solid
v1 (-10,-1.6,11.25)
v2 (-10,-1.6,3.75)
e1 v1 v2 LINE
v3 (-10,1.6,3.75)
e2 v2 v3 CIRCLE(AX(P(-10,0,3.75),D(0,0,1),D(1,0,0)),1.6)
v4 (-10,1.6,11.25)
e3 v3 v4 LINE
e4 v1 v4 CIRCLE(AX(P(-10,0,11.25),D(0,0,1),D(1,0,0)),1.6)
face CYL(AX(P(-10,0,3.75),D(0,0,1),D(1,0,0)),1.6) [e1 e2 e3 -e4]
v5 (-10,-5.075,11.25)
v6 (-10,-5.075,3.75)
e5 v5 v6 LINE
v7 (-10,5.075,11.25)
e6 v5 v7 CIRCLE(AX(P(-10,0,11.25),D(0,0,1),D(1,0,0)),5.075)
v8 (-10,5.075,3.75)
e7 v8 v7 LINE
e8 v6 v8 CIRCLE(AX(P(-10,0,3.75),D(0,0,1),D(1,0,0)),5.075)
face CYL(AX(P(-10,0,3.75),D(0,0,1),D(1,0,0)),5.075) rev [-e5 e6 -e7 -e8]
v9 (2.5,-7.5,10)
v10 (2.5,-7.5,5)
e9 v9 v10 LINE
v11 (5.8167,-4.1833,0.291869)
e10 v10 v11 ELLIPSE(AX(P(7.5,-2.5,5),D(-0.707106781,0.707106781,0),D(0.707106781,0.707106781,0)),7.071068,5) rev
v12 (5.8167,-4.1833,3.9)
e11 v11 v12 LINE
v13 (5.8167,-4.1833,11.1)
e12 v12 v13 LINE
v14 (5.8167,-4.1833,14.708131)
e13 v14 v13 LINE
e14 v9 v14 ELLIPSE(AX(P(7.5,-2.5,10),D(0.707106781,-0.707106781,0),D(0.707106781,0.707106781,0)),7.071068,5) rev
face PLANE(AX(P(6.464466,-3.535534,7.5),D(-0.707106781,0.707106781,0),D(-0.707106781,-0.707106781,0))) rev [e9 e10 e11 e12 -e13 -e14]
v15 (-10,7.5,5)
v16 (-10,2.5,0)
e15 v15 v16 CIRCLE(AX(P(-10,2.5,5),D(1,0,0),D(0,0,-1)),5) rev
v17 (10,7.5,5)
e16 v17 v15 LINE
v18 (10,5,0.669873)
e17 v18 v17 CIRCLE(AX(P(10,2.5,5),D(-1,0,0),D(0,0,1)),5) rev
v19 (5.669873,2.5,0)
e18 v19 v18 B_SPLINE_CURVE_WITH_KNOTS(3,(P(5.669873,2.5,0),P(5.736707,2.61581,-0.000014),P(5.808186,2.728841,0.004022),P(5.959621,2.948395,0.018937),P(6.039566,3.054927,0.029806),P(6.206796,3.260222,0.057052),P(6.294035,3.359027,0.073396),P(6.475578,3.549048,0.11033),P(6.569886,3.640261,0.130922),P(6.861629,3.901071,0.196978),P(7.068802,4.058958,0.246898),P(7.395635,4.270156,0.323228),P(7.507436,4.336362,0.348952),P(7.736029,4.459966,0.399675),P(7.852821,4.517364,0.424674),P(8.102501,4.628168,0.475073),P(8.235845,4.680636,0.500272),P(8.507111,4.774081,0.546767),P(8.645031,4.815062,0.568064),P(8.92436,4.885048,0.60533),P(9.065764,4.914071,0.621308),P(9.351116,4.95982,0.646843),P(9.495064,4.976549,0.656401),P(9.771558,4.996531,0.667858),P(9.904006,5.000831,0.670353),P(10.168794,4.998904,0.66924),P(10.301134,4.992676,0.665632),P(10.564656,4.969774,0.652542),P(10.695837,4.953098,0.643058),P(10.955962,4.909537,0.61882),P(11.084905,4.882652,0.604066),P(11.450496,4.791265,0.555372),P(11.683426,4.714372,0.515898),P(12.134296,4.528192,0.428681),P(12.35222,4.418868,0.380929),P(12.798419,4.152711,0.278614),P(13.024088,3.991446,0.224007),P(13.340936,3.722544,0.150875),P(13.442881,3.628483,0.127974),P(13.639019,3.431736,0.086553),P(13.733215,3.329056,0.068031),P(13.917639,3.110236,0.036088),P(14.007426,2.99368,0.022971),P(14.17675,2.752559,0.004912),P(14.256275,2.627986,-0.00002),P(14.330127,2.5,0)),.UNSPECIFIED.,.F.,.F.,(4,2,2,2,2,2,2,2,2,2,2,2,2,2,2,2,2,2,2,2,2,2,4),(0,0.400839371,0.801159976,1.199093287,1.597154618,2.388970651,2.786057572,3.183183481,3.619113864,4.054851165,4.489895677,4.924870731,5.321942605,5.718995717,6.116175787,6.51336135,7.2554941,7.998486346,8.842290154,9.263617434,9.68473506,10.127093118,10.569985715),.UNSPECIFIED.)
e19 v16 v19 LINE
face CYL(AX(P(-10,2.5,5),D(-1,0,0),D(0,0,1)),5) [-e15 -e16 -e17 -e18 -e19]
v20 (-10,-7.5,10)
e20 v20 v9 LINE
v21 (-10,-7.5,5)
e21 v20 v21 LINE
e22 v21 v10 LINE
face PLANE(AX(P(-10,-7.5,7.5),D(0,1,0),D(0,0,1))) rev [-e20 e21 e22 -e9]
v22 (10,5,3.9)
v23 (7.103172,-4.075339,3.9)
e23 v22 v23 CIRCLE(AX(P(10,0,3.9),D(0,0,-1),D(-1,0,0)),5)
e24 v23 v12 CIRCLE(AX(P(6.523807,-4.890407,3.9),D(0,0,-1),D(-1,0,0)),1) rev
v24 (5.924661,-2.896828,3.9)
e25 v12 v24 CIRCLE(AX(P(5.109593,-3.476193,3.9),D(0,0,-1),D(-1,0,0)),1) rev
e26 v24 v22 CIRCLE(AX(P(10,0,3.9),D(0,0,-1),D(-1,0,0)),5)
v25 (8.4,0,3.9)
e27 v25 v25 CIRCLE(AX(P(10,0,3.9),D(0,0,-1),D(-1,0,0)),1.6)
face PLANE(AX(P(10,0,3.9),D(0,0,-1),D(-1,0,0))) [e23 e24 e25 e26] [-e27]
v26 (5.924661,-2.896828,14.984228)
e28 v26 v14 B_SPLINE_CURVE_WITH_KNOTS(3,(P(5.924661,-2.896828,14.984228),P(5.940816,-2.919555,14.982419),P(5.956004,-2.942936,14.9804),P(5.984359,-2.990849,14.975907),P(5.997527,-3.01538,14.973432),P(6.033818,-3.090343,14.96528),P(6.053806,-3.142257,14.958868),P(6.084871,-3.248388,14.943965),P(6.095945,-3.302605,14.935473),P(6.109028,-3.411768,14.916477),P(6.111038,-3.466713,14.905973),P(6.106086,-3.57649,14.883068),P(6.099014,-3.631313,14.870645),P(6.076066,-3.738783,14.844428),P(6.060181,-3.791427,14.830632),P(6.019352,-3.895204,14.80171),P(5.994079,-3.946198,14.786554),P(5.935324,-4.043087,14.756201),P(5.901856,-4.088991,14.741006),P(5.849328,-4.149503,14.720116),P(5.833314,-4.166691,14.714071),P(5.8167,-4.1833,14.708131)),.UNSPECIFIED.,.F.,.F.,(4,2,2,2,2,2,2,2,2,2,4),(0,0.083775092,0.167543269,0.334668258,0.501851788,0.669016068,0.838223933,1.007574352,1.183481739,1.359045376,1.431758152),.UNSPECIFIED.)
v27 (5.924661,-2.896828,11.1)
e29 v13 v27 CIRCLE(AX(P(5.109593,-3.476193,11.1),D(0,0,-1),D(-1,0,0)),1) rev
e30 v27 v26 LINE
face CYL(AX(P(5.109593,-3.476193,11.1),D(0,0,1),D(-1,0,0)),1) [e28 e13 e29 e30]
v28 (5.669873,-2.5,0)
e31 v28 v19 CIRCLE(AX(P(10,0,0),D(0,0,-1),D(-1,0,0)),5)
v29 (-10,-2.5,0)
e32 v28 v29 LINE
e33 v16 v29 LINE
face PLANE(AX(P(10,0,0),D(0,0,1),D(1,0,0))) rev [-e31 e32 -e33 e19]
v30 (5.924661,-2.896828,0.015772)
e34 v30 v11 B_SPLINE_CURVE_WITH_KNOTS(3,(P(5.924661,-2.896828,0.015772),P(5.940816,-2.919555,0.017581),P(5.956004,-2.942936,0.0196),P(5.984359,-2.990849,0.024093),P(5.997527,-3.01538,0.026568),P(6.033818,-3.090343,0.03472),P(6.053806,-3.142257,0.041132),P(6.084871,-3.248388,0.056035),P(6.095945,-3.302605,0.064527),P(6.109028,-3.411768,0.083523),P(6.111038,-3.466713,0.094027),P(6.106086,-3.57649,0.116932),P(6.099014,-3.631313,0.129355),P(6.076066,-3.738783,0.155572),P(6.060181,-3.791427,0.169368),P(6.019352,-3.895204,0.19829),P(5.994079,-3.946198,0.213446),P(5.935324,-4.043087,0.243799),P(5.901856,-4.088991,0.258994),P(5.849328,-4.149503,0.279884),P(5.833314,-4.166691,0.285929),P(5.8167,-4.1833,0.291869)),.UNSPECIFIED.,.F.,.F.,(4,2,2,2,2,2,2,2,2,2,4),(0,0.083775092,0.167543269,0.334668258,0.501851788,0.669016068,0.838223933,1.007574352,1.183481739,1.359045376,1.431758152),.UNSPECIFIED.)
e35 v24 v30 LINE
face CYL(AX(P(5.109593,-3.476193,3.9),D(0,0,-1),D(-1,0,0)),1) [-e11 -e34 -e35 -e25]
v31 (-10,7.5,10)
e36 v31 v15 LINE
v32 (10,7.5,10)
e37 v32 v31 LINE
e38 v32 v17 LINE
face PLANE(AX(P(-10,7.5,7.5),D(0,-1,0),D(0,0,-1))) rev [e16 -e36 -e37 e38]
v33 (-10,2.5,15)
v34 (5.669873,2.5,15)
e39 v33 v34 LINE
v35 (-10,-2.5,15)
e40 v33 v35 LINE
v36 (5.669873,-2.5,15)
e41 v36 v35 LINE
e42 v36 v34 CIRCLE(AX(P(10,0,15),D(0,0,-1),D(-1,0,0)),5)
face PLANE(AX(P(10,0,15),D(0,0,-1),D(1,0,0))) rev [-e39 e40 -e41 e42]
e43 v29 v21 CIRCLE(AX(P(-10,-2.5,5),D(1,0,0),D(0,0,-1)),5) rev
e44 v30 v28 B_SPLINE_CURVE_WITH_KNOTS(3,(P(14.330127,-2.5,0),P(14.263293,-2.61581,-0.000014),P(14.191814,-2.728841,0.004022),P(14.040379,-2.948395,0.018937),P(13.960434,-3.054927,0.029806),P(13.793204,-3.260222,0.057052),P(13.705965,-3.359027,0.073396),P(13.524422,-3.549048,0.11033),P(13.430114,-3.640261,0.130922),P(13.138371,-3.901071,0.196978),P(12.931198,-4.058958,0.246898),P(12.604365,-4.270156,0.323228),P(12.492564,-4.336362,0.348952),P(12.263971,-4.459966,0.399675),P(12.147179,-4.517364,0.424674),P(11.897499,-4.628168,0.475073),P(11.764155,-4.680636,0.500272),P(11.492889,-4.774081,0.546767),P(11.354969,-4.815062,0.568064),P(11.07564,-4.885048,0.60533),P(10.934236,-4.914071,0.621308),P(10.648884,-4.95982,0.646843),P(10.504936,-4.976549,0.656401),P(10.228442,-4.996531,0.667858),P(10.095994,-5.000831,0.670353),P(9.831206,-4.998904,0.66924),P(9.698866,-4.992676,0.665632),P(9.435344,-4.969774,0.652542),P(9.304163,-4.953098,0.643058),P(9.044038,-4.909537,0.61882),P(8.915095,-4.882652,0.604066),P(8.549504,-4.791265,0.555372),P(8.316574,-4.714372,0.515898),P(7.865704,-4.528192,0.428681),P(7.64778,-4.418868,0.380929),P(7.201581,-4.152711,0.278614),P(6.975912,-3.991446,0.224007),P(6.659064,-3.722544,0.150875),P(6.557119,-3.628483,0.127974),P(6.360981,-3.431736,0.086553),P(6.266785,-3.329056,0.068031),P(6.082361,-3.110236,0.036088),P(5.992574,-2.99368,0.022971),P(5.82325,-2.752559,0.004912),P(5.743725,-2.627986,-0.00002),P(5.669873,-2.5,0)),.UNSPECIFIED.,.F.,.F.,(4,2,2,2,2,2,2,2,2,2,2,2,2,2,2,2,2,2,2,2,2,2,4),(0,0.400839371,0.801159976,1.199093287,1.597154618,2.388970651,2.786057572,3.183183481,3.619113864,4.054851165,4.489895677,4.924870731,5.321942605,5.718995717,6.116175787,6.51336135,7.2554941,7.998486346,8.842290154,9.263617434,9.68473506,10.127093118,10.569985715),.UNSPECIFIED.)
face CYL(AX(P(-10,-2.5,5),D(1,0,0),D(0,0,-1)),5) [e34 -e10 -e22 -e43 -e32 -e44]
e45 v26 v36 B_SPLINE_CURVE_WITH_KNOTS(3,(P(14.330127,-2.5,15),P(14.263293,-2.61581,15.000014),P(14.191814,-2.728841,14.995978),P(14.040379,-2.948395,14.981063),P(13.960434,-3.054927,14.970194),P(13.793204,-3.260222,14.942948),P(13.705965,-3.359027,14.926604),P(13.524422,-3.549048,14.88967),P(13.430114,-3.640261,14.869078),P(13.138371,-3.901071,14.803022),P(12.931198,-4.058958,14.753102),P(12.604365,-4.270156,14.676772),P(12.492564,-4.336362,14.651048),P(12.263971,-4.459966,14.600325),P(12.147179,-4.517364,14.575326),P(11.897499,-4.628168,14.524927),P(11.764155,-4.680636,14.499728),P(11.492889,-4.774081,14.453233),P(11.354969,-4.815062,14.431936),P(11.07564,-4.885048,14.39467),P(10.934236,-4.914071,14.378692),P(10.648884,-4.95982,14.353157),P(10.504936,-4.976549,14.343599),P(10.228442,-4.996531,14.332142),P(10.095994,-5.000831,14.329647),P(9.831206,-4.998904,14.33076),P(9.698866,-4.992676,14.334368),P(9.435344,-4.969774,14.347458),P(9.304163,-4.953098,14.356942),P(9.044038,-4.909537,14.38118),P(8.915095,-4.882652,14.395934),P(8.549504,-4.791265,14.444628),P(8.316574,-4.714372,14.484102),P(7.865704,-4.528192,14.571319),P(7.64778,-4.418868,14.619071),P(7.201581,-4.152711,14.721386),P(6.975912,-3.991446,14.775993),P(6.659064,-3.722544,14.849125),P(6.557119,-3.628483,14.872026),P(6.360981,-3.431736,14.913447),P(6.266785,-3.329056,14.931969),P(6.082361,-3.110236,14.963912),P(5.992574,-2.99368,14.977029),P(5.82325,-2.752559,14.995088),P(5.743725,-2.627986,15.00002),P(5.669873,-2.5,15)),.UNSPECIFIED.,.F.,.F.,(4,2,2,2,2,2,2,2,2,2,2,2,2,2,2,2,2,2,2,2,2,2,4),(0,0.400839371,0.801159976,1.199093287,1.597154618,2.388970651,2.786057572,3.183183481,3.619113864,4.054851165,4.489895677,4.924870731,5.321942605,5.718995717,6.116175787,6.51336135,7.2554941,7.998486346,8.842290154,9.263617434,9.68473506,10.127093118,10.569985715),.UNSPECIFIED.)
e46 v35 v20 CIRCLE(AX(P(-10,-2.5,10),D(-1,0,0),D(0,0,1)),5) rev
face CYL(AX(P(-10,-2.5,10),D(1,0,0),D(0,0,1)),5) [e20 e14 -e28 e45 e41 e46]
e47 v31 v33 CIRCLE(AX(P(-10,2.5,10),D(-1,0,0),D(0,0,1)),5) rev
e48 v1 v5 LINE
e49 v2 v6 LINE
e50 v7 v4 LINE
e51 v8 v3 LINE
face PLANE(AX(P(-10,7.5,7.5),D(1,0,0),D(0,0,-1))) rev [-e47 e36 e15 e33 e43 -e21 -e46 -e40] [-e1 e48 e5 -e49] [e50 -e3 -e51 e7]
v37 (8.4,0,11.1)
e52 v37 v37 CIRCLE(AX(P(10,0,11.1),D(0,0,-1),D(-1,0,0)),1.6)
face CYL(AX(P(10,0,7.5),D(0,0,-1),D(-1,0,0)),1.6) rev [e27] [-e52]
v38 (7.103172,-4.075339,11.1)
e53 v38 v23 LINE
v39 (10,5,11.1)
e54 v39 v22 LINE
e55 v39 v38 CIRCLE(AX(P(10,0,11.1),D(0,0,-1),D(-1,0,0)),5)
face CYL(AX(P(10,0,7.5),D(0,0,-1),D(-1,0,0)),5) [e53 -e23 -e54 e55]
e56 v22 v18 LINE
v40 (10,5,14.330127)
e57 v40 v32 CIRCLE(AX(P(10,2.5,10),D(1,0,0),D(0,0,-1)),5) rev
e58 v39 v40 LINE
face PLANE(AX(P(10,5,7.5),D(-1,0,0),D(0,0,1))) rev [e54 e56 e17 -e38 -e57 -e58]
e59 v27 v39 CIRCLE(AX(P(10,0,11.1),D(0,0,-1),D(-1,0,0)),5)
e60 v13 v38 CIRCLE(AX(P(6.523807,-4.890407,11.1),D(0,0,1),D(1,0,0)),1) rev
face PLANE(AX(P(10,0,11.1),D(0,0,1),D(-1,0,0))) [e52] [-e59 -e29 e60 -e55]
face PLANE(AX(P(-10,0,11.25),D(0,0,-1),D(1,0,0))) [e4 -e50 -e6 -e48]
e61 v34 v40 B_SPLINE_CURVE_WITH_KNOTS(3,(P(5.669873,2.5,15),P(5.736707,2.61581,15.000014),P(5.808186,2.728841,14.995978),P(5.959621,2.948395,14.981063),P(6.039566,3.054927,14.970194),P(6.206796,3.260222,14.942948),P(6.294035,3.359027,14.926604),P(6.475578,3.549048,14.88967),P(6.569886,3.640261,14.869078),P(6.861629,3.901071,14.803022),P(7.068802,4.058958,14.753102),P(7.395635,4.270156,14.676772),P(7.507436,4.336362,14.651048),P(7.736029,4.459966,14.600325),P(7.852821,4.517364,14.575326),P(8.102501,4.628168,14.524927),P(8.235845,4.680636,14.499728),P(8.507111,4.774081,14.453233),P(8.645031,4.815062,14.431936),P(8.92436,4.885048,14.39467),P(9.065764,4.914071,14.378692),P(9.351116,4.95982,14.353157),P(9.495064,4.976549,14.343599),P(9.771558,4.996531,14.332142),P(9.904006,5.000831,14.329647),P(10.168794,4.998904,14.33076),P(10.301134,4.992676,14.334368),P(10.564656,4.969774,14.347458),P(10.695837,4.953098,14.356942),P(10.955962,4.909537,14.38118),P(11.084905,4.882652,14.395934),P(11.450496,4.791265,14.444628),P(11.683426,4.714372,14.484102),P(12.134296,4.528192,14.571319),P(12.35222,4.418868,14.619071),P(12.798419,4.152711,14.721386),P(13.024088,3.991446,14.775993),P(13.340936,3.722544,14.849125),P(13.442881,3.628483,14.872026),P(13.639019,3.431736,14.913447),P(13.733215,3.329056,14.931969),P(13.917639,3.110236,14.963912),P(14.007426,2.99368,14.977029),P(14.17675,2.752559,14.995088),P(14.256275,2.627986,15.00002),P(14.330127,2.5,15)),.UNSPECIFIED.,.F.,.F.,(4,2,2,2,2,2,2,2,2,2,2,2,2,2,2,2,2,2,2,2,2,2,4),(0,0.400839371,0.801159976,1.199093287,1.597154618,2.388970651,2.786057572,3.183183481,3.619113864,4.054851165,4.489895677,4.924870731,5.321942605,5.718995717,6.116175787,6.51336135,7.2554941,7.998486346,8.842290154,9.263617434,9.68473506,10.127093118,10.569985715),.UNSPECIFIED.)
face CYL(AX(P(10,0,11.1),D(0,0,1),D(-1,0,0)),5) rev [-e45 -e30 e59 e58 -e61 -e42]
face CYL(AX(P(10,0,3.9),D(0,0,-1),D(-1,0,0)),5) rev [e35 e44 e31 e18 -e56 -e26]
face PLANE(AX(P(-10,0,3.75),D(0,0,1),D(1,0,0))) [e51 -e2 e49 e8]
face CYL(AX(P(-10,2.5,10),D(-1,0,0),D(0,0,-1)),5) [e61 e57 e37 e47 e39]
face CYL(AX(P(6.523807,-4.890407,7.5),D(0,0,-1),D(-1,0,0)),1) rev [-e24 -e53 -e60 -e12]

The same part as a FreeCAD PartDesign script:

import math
import FreeCAD as App
import Part
import Sketcher
from FreeCAD import Vector
Q = App.Units.Quantity


def edges_at(feature, points):
    """Names of the edges that pass closest to the given points."""
    edges = feature.Shape.Edges
    near = lambda p: min(range(len(edges)), key=lambda i: edges[i].distToShape(Part.Vertex(*p))[0])
    return sorted({f"Edge{near(p) + 1}" for p in points})

doc = App.newDocument("Part")
params = doc.addObject("Spreadsheet::Sheet", "Params")
for row, (alias, value) in enumerate([
    ("sketch1_radius", "5 mm"),
    ("sketch1_diameter", "3.2 mm"),
    ("sketch1_width", "20 mm"),
    ("sketch1_height", "15 mm"),
    ("pad1_length", "7.5 mm"),
    ("sketch2_diameter", "3.2 mm"),
    ("sketch2_diameter2", "10.15 mm"),
    ("pocket1_length", "3.75 mm"),
    ("fillet_radius", "5 mm"),
    ("sketch3_diameter", "10 mm"),
    ("pocket2_length", "3.9 mm"),
    ("sketch4_radius", "5 mm"),
    ("sketch4_width", "7.5 mm"),
    ("sketch4_height", "2.5 mm"),
    ("fillet2_radius", "1 mm"),
    ("fillet3_radius", "1 mm"),
], start=1):
    params.set(f"A{row}", alias)
    params.set(f"B{row}", "=" + value)
    params.setAlias(f"B{row}", alias)

body = doc.addObject("PartDesign::Body", "Body")

# Sketch on XY plane
sketch1 = doc.addObject("Sketcher::SketchObject", "Sketch")
body.addObject(sketch1)
sketch1.AttachmentSupport = (doc.XY_Plane, [""])
sketch1.MapMode = "FlatFace"
sketch1.addGeometry([
    Part.LineSegment(Vector(10, 5, 0), Vector(10, 7.5, 0)),  # 0
    Part.LineSegment(Vector(10, 7.5, 0), Vector(-10, 7.5, 0)),  # 1
    Part.LineSegment(Vector(-10, 7.5, 0), Vector(-10, -7.5, 0)),  # 2
    Part.LineSegment(Vector(-10, -7.5, 0), Vector(10, -7.5, 0)),  # 3
    Part.LineSegment(Vector(10, -7.5, 0), Vector(10, -5, 0)),  # 4
    Part.ArcOfCircle(Part.Circle(Vector(10, 0, 0), Vector(0, 0, 1), 5), math.radians(-90), math.radians(90)),  # 5
    Part.Circle(Vector(10, 0, 0), Vector(0, 0, 1), 1.6),  # 6
], False)
sketch1.addConstraint([
    Sketcher.Constraint("Coincident", 0, 2, 1, 1),
    Sketcher.Constraint("Coincident", 1, 2, 2, 1),
    Sketcher.Constraint("Coincident", 2, 2, 3, 1),
    Sketcher.Constraint("Coincident", 3, 2, 4, 1),
    Sketcher.Constraint("Coincident", 4, 2, 5, 1),
    Sketcher.Constraint("Coincident", 5, 2, 0, 1),
    Sketcher.Constraint("Vertical", 0),
    Sketcher.Constraint("Horizontal", 1),
    Sketcher.Constraint("Vertical", 2),
    Sketcher.Constraint("Horizontal", 3),
    Sketcher.Constraint("Vertical", 4),
    Sketcher.Constraint("Coincident", 6, 3, 5, 3),
    Sketcher.Constraint("Symmetric", 0, 2, 2, 2, -1, 1),
    Sketcher.Constraint("Symmetric", 4, 2, 5, 2, -1),
    Sketcher.Constraint("Vertical", 6, 3, 0, 2),
    Sketcher.Constraint("Radius", 5, Q("5 mm")),
    Sketcher.Constraint("Diameter", 6, Q("3.2 mm")),
    Sketcher.Constraint("DistanceX", 1, 2, 1, 1, Q("20 mm")),
    Sketcher.Constraint("DistanceY", 2, 2, 2, 1, Q("15 mm")),
])
sketch1.setExpression("Constraints[15]", "Params.sketch1_radius")
sketch1.setExpression("Constraints[16]", "Params.sketch1_diameter")
sketch1.setExpression("Constraints[17]", "Params.sketch1_width")
sketch1.setExpression("Constraints[18]", "Params.sketch1_height")
pad1 = doc.addObject("PartDesign::Pad", "Pad")
body.addObject(pad1)
pad1.Profile = sketch1
pad1.setExpression("Length", "Params.pad1_length")

# Sketch on XY plane
sketch2 = doc.addObject("Sketcher::SketchObject", "Sketch001")
body.addObject(sketch2)
sketch2.AttachmentSupport = (doc.XY_Plane, [""])
sketch2.MapMode = "FlatFace"
sketch2.AttachmentOffset = App.Placement(Vector(0, 0, 7.5), App.Rotation())
sketch2.addGeometry([
    Part.Circle(Vector(-10, 0, 0), Vector(0, 0, 1), 5.1),
    Part.Circle(Vector(-10, 0, 0), Vector(0, 0, 1), 1.6),
], False)
sketch2.addConstraint([
    Sketcher.Constraint("Coincident", 1, 3, 0, 3),
    Sketcher.Constraint("PointOnObject", 0, 3, -1),
    Sketcher.Constraint("Diameter", 1, Q("3.2 mm")),
    Sketcher.Constraint("Diameter", 0, Q("10.15 mm")),
    Sketcher.Constraint("DistanceX", 0, 3, -1, 1, Q("10 mm")),
])
sketch2.setExpression("Constraints[2]", "Params.sketch2_diameter")
sketch2.setExpression("Constraints[3]", "Params.sketch2_diameter2")
pocket1 = doc.addObject("PartDesign::Pocket", "Pocket")
body.addObject(pocket1)
pocket1.Profile = sketch2
pocket1.setExpression("Length", "Params.pocket1_length")
doc.recompute()

fillet = doc.addObject("PartDesign::Fillet", "Fillet")
body.addObject(fillet)
fillet.Base = (pocket1, edges_at(pocket1, [(0, -7.5, 0), (0, 7.5, 0)]))
fillet.setExpression("Radius", "Params.fillet_radius")

# Sketch on XY plane
sketch3 = doc.addObject("Sketcher::SketchObject", "Sketch002")
body.addObject(sketch3)
sketch3.AttachmentSupport = (doc.XY_Plane, [""])
sketch3.MapMode = "FlatFace"
sketch3.addGeometry(Part.Circle(Vector(10, 0, 0), Vector(0, 0, 1), 5), False)
sketch3.addConstraint([
    Sketcher.Constraint("PointOnObject", 0, 3, -1),
    Sketcher.Constraint("Diameter", 0, Q("10 mm")),
    Sketcher.Constraint("DistanceX", -1, 1, 0, 3, Q("10 mm")),
])
sketch3.setExpression("Constraints[1]", "Params.sketch3_diameter")
pocket2 = doc.addObject("PartDesign::Pocket", "Pocket001")
body.addObject(pocket2)
pocket2.Profile = sketch3
pocket2.setExpression("Length", "Params.pocket2_length")
pocket2.Reversed = True

# Sketch on XY plane
sketch4 = doc.addObject("Sketcher::SketchObject", "Sketch003")
body.addObject(sketch4)
sketch4.AttachmentSupport = (doc.XY_Plane, [""])
sketch4.MapMode = "FlatFace"
sketch4.addGeometry([
    Part.LineSegment(Vector(2.5, -7.5, 0), Vector(6.5, -3.5, 0)),
    Part.ArcOfCircle(Part.Circle(Vector(10, 0, 0), Vector(0, 0, 1), 5), math.radians(-135), math.radians(-90)),
    Part.LineSegment(Vector(10, -5, 0), Vector(10, -7.5, 0)),
    Part.LineSegment(Vector(10, -7.5, 0), Vector(2.5, -7.5, 0)),
], False)
sketch4.addConstraint([
    Sketcher.Constraint("Coincident", 0, 2, 1, 1),
    Sketcher.Constraint("Coincident", 1, 2, 2, 1),
    Sketcher.Constraint("Coincident", 2, 2, 3, 1),
    Sketcher.Constraint("Coincident", 3, 2, 0, 1),
    Sketcher.Constraint("Vertical", 2),
    Sketcher.Constraint("Horizontal", 3),
    Sketcher.Constraint("PointOnObject", 1, 3, -1),
    Sketcher.Constraint("Radius", 1, Q("5 mm")),
    Sketcher.Constraint("Angle", 0, Q("45 deg")),
    Sketcher.Constraint("DistanceX", 3, 2, 3, 1, Q("7.5 mm")),
    Sketcher.Constraint("DistanceY", 2, 2, 2, 1, Q("2.5 mm")),
    Sketcher.Constraint("DistanceX", -1, 1, 1, 3, Q("10 mm")),
    Sketcher.Constraint("DistanceX", -1, 1, 1, 2, Q("10 mm")),
])
sketch4.setExpression("Constraints[7]", "Params.sketch4_radius")
sketch4.setExpression("Constraints[9]", "Params.sketch4_width")
sketch4.setExpression("Constraints[10]", "Params.sketch4_height")
pocket3 = doc.addObject("PartDesign::Pocket", "Pocket002")
body.addObject(pocket3)
pocket3.Profile = sketch4
pocket3.Type = "ThroughAll"
pocket3.Reversed = True
doc.recompute()

fillet2 = doc.addObject("PartDesign::Fillet", "Fillet001")
body.addObject(fillet2)
fillet2.Base = (pocket3, edges_at(pocket3, [(6.464, -3.536, 2.004)]))
fillet2.setExpression("Radius", "Params.fillet2_radius")
body2 = doc.addObject("PartDesign::Body", "Body001")
doc.recompute()

body2.BaseFeature = body
doc.recompute()

mirroring = doc.addObject("Part::Mirroring", "Mirroring")
mirroring.Source = body
mirroring.Base = Vector(10, 0, 7.5)
mirroring.Normal = Vector(0, 0, 1)
body3 = doc.addObject("PartDesign::Body", "Body002")
body3.BaseFeature = mirroring
boolean = doc.addObject("PartDesign::Boolean", "Boolean")
body2.addObject(boolean)
boolean.Type = "Fuse"
boolean.addObjects([body3])
doc.recompute()

fillet3 = doc.addObject("PartDesign::Fillet", "Fillet002")
body2.addObject(fillet3)
fillet3.Base = (boolean, edges_at(boolean, [(6.464, -3.536, 7.5)]))
fillet3.setExpression("Radius", "Params.fillet3_radius")
mirroring.Visibility = False

doc.recompute()
